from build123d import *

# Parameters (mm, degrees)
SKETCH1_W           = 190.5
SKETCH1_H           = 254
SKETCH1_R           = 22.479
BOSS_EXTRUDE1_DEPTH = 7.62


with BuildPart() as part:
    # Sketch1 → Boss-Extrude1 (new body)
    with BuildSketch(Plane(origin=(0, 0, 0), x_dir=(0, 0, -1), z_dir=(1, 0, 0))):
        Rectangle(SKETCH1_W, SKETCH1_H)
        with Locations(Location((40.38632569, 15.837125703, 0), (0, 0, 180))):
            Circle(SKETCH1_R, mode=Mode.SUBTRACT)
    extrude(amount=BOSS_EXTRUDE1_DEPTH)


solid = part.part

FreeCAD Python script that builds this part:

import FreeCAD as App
import Part
import Sketcher
from FreeCAD import Vector
Q = App.Units.Quantity

doc = App.newDocument("Part")
params = doc.addObject("Spreadsheet::Sheet", "Params")
for row, (alias, value) in enumerate([
    ("sketch1_diameter", "1.77 in"),
    ("sketch1_width", "10 in"),
    ("sketch1_height", "7.5 in"),
    ("pad1_length", "0.3 in"),
], start=1):
    params.set(f"A{row}", alias)
    params.set(f"B{row}", "=" + value)
    params.setAlias(f"B{row}", alias)

body = doc.addObject("PartDesign::Body", "Body")

# Sketch on YZ plane
sketch1 = body.newObject("Sketcher::SketchObject", "Sketch")
sketch1.AttachmentSupport = (doc.getObject("YZ_Plane"), [""])
sketch1.MapMode = "FlatFace"
sketch1.addGeometry(Part.LineSegment(Vector(127, 95, 0), Vector(-127, 95, 0)), False)
sketch1.addGeometry(Part.LineSegment(Vector(-127, 95, 0), Vector(-127, -95, 0)), False)
sketch1.addGeometry(Part.LineSegment(Vector(-127, -95, 0), Vector(127, -95, 0)), False)
sketch1.addGeometry(Part.LineSegment(Vector(127, -95, 0), Vector(127, 95, 0)), False)
sketch1.addGeometry(Part.Circle(Vector(16, -40, 0), Vector(0, 0, 1), 22), False)
sketch1.addConstraint(Sketcher.Constraint("Coincident", 0, 2, 1, 1))
sketch1.addConstraint(Sketcher.Constraint("Coincident", 1, 2, 2, 1))
sketch1.addConstraint(Sketcher.Constraint("Coincident", 2, 2, 3, 1))
sketch1.addConstraint(Sketcher.Constraint("Coincident", 3, 2, 0, 1))
sketch1.addConstraint(Sketcher.Constraint("Horizontal", 0))
sketch1.addConstraint(Sketcher.Constraint("Vertical", 1))
sketch1.addConstraint(Sketcher.Constraint("Horizontal", 2))
sketch1.addConstraint(Sketcher.Constraint("Vertical", 3))
sketch1.addConstraint(Sketcher.Constraint("Symmetric", 0, 2, 2, 2, -1, 1))
sketch1.addConstraint(Sketcher.Constraint("Diameter", 4, Q("1.77 in")))
sketch1.addConstraint(Sketcher.Constraint("DistanceX", 0, 2, 0, 1, Q("10 in")))
sketch1.addConstraint(Sketcher.Constraint("DistanceY", 1, 2, 1, 1, Q("7.5 in")))
sketch1.addConstraint(Sketcher.Constraint("DistanceX", -1, 1, 4, 3, 15.837126))
sketch1.addConstraint(Sketcher.Constraint("DistanceY", 4, 3, -1, 1, 40.386326))
sketch1.setExpression("Constraints[9]", "Params.sketch1_diameter")
sketch1.setExpression("Constraints[10]", "Params.sketch1_width")
sketch1.setExpression("Constraints[11]", "Params.sketch1_height")
pad1 = body.newObject("PartDesign::Pad", "Pad")
pad1.Profile = sketch1
pad1.setExpression("Length", "Params.pad1_length")

doc.recompute()
